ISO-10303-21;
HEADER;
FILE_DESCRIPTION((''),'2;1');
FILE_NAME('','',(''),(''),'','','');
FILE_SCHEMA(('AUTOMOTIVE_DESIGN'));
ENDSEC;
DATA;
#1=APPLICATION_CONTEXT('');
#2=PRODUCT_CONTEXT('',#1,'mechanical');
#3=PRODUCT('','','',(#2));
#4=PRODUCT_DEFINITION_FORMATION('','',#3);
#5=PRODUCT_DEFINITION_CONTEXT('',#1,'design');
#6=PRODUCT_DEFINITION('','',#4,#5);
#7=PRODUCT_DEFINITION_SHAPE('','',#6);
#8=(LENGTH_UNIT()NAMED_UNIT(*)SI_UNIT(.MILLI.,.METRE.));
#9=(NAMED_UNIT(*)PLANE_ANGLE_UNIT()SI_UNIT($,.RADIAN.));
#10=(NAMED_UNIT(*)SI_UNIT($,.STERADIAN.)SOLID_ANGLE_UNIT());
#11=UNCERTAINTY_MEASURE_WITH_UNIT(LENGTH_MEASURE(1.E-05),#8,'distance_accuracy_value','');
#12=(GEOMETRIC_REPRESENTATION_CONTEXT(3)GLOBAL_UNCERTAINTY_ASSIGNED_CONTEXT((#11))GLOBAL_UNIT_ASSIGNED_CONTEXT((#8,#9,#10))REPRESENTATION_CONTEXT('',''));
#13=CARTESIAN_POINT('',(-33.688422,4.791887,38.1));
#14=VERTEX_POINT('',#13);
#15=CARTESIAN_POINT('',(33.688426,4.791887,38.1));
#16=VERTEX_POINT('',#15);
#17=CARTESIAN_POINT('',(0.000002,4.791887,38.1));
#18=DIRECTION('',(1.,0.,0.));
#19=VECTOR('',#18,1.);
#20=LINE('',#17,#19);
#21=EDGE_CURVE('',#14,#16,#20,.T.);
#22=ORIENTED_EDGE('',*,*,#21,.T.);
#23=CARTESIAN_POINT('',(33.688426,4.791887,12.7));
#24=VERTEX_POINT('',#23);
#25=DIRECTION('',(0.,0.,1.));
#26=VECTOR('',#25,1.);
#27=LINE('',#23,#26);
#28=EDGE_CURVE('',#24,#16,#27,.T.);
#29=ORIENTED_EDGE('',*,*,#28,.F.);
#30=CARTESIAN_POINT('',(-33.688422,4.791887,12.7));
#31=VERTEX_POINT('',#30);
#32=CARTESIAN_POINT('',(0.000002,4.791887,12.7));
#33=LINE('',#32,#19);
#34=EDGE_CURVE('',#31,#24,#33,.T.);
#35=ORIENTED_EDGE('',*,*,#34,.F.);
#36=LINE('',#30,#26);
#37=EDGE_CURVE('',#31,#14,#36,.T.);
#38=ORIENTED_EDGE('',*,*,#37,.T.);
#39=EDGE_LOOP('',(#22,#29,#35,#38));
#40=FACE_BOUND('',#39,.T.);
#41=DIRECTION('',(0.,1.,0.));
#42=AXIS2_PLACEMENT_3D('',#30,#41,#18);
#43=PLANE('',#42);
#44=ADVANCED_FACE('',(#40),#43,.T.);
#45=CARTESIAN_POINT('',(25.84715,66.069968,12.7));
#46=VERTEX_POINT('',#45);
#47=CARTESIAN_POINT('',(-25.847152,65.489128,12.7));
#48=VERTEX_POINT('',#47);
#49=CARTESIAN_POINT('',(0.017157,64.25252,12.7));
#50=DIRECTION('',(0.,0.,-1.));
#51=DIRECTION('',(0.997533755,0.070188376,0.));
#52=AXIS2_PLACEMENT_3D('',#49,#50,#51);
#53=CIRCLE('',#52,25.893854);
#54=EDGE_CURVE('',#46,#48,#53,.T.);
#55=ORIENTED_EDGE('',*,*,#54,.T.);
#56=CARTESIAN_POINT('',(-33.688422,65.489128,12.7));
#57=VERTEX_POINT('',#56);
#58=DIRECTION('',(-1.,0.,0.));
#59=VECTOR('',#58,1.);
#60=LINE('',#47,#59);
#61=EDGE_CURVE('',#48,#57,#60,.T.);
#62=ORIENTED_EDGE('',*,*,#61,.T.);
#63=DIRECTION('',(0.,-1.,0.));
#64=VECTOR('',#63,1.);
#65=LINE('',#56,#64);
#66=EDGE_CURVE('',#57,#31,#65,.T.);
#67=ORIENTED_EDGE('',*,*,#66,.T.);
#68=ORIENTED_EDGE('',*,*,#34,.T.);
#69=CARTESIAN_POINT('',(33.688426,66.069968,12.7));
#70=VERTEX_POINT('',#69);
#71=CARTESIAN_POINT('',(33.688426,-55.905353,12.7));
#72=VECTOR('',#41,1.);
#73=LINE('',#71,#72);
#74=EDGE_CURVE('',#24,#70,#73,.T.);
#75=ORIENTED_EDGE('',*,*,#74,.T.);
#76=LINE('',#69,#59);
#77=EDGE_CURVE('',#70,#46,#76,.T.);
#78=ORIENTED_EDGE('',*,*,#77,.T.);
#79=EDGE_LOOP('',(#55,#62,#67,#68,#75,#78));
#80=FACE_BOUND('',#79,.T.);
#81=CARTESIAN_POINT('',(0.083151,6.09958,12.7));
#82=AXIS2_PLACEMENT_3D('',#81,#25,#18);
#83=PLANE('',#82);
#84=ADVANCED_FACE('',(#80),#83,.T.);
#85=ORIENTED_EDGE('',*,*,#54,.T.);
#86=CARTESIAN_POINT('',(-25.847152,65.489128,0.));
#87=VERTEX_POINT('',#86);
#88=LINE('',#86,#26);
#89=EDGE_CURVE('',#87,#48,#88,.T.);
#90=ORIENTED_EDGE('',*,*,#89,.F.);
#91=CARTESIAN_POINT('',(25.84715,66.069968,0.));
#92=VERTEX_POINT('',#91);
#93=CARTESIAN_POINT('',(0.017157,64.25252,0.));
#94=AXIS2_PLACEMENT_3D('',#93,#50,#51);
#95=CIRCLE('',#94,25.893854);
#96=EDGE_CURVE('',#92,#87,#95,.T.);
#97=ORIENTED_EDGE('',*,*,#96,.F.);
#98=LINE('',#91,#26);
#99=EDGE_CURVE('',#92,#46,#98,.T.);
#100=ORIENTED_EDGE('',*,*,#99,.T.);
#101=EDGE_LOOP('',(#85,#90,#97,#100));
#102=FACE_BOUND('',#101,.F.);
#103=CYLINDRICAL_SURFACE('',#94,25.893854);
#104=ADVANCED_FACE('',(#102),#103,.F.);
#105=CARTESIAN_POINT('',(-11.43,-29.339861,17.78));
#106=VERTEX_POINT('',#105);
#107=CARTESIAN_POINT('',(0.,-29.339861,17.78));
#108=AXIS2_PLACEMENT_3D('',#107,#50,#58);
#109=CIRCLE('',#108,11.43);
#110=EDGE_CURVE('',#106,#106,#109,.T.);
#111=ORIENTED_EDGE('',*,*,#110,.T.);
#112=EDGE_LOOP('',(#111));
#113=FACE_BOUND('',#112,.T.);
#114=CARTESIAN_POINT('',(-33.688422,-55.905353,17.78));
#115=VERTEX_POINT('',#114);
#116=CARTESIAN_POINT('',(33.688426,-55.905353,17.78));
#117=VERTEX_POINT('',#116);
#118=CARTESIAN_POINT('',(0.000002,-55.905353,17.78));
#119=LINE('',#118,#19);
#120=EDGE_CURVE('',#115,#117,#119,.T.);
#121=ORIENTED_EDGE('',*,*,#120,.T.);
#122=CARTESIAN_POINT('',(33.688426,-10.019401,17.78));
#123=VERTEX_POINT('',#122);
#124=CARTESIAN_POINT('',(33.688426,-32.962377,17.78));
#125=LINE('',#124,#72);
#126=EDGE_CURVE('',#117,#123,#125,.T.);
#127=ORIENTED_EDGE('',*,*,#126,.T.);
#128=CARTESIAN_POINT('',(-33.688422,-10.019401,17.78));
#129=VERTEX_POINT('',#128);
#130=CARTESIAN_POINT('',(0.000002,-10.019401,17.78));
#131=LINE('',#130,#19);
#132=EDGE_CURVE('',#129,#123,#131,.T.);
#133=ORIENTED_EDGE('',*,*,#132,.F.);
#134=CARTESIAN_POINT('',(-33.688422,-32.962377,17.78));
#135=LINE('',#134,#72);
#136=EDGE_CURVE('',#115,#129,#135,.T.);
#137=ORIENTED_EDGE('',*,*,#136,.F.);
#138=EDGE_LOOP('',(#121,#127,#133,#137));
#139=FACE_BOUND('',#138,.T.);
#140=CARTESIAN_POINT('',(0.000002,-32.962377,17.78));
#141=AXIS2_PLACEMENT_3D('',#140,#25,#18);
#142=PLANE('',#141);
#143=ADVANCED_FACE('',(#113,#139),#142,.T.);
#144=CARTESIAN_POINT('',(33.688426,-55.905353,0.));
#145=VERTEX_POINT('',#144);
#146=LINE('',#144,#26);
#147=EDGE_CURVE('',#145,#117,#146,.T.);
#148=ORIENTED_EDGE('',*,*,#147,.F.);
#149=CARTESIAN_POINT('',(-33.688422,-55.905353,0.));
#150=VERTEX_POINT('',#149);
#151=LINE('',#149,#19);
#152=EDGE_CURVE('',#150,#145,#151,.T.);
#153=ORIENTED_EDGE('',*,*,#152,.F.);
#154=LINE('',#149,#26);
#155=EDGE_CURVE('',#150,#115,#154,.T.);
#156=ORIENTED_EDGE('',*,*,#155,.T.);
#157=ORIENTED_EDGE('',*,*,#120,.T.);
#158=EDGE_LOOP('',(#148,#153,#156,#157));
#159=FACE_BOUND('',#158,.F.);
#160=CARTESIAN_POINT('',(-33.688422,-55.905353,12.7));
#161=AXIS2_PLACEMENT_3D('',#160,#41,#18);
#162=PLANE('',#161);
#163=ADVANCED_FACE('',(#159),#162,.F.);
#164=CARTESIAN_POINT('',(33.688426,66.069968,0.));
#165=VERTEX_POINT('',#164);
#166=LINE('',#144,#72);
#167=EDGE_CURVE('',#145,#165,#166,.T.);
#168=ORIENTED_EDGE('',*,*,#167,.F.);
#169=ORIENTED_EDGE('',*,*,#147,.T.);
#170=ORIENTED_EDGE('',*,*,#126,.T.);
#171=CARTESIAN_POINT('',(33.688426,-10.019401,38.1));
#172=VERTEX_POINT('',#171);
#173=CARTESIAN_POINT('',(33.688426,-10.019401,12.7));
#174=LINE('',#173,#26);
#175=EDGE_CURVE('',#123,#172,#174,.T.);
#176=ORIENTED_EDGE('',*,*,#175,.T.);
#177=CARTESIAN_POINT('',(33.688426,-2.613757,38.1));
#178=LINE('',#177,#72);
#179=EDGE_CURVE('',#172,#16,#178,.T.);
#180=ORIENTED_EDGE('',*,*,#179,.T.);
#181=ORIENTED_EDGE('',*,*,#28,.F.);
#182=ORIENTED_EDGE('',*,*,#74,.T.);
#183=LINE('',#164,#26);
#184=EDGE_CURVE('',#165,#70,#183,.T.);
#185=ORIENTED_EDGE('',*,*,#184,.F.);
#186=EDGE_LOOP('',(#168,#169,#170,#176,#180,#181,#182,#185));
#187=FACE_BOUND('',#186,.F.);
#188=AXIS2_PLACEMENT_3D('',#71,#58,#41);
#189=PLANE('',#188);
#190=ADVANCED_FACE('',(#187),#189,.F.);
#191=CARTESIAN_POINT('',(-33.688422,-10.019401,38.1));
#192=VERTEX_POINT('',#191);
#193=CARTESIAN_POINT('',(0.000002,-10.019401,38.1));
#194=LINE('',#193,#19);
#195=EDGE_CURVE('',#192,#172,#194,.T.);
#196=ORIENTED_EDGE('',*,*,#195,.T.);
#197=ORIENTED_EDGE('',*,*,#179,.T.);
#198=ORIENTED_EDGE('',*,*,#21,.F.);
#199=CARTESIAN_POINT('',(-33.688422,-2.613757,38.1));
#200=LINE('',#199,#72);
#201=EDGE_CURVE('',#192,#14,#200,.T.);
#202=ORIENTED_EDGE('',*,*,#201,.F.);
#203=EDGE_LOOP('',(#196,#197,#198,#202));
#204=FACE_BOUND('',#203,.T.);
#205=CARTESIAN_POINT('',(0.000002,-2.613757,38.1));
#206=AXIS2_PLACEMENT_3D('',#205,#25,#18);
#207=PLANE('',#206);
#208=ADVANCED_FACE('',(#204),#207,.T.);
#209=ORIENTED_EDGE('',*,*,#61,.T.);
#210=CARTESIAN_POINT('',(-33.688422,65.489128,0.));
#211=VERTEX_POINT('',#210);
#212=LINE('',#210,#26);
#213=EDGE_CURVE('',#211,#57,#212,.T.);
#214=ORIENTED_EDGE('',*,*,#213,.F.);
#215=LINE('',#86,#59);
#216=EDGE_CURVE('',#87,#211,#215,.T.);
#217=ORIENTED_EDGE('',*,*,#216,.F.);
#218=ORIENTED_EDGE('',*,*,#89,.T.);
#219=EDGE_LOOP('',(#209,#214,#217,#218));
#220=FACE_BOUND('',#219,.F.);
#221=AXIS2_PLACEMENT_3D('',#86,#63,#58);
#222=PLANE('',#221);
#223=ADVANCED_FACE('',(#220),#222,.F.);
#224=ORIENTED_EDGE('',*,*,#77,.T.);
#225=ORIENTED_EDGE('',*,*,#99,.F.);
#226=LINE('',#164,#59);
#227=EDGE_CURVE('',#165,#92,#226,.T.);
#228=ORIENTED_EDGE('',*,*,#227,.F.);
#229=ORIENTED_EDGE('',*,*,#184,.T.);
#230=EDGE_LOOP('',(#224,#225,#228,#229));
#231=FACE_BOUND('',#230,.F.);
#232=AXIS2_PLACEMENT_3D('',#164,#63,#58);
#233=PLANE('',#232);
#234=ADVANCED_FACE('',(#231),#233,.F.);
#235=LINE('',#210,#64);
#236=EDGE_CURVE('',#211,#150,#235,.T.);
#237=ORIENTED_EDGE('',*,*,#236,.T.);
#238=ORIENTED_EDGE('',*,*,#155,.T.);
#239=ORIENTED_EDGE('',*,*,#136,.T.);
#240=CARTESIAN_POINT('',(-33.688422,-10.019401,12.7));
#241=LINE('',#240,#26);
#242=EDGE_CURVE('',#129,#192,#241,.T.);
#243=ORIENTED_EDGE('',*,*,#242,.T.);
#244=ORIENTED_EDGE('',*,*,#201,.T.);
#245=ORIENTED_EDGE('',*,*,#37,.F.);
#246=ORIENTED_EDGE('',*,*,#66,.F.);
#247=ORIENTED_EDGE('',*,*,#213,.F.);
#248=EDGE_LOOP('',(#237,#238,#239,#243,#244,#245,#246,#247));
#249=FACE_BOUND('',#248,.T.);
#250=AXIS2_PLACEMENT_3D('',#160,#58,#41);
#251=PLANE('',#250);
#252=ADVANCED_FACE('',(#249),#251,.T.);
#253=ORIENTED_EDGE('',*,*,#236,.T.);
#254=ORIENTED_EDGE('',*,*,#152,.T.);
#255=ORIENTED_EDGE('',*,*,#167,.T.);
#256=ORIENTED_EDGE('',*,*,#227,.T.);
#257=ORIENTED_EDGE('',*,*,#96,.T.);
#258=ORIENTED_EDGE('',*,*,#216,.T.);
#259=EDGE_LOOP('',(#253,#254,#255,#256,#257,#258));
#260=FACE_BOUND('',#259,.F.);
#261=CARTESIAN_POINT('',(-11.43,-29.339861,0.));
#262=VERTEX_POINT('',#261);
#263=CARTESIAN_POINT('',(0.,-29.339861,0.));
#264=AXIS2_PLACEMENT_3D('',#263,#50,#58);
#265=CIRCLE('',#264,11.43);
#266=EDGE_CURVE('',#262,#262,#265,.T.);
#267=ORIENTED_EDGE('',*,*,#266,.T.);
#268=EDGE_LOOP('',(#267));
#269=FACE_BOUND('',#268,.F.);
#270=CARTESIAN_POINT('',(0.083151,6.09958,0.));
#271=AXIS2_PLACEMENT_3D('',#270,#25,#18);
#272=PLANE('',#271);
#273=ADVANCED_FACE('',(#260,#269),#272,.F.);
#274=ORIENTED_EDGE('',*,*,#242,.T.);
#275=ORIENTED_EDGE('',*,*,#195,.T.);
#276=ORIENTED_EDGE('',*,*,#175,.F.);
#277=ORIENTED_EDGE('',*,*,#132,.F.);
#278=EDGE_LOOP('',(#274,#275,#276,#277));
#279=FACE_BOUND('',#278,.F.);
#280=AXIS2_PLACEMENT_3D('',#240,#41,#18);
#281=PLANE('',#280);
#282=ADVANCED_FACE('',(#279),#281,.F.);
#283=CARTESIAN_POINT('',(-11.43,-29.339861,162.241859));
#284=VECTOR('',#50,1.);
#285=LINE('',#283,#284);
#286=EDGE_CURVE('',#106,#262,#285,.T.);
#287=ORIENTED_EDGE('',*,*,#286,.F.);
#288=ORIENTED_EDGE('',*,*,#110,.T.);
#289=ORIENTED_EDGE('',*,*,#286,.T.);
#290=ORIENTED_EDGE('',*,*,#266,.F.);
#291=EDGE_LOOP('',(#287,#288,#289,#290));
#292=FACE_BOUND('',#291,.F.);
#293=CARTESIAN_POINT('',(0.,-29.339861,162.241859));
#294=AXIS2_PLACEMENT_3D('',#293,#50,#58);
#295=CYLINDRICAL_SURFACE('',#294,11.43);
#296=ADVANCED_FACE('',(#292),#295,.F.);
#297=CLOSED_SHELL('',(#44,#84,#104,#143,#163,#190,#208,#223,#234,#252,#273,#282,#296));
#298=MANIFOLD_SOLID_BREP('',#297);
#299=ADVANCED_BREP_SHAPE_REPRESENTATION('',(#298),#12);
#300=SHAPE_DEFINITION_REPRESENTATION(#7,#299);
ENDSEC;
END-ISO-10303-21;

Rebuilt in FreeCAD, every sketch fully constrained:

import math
import FreeCAD as App
import Part
import Sketcher

V = App.Vector
Q = App.Units.Quantity

doc = App.newDocument("Part")
body = doc.addObject("PartDesign::Body", "Body")

# Sketch on XY plane
sketch1 = doc.addObject("Sketcher::SketchObject", "Sketch")
body.addObject(sketch1)
sketch1.AttachmentSupport = (doc.XY_Plane, [""])
sketch1.MapMode = "FlatFace"
sketch1.addGeometry([
    Part.LineSegment(V(-34, 65, 0), V(-34, -56, 0)),  # 0
    Part.LineSegment(V(-34, -56, 0), V(34, -56, 0)),  # 1
    Part.LineSegment(V(34, -56, 0), V(34, 66, 0)),  # 2
    Part.LineSegment(V(34, 66, 0), V(26, 66, 0)),  # 3
    Part.ArcOfCircle(Part.Circle(V(0, 64, 0), V(0, 0, 1), 26), math.radians(177), math.radians(364)),  # 4
    Part.LineSegment(V(-26, 65, 0), V(-34, 65, 0)),  # 5
], False)
sketch1.addConstraint([
    Sketcher.Constraint("Coincident", 0, 2, 1, 1),
    Sketcher.Constraint("Coincident", 1, 2, 2, 1),
    Sketcher.Constraint("Coincident", 2, 2, 3, 1),
    Sketcher.Constraint("Coincident", 3, 2, 4, 2),
    Sketcher.Constraint("Coincident", 4, 1, 5, 1),
    Sketcher.Constraint("Coincident", 5, 2, 0, 1),
    Sketcher.Constraint("Vertical", 0),
    Sketcher.Constraint("Horizontal", 1),
    Sketcher.Constraint("Vertical", 2),
    Sketcher.Constraint("Horizontal", 3),
    Sketcher.Constraint("Horizontal", 5),
    Sketcher.Constraint("Radius", 4, Q("25.893854 mm")),
    Sketcher.Constraint("DistanceX", 5, 2, 5, 1, Q("7.84127 mm")),
    Sketcher.Constraint("DistanceY", 0, 2, 0, 1, Q("121.394481 mm")),
    Sketcher.Constraint("DistanceY", 2, 1, 2, 2, Q("121.975321 mm")),
    Sketcher.Constraint("DistanceX", 4, 1, 3, 2, Q("51.694302 mm")),
    Sketcher.Constraint("DistanceX", 1, 1, 1, 2, Q("67.376848 mm")),
    Sketcher.Constraint("DistanceY", -1, 1, 4, 3, Q("64.25252 mm")),
    Sketcher.Constraint("DistanceX", -1, 1, 3, 2, Q("25.84715 mm")),
])
pad1 = doc.addObject("PartDesign::Pad", "Pad")
body.addObject(pad1)
pad1.Profile = sketch1
pad1.Length = Q("0.5 in")

# Sketch on XY plane
sketch2 = doc.addObject("Sketcher::SketchObject", "Sketch001")
body.addObject(sketch2)
sketch2.AttachmentSupport = (doc.XY_Plane, [""])
sketch2.MapMode = "FlatFace"
sketch2.AttachmentOffset = App.Placement(V(0, 0, 0.5 * 25.4), App.Rotation())
sketch2.addGeometry([
    Part.LineSegment(V(-34, 5, 0), V(-34, -10, 0)),
    Part.LineSegment(V(-34, -10, 0), V(34, -10, 0)),
    Part.LineSegment(V(34, -10, 0), V(34, 5, 0)),
    Part.LineSegment(V(34, 5, 0), V(-34, 5, 0)),
], False)
sketch2.addConstraint([
    Sketcher.Constraint("Coincident", 0, 2, 1, 1),
    Sketcher.Constraint("Coincident", 1, 2, 2, 1),
    Sketcher.Constraint("Coincident", 2, 2, 3, 1),
    Sketcher.Constraint("Coincident", 3, 2, 0, 1),
    Sketcher.Constraint("Vertical", 0),
    Sketcher.Constraint("Horizontal", 1),
    Sketcher.Constraint("Vertical", 2),
    Sketcher.Constraint("Horizontal", 3),
    Sketcher.Constraint("DistanceY", 0, 2, 0, 1, Q("14.811288 mm")),
    Sketcher.Constraint("DistanceY", 0, 2, -1, 1, Q("10.019401 mm")),
    Sketcher.Constraint("DistanceX", 1, 1, 1, 2, Q("67.376848 mm")),
    Sketcher.Constraint("DistanceX", 0, 2, -1, 1, Q("33.688422 mm")),
])
pad2 = doc.addObject("PartDesign::Pad", "Pad001")
body.addObject(pad2)
pad2.Profile = sketch2
pad2.Length = Q("1 in")

# Sketch on XY plane
sketch3 = doc.addObject("Sketcher::SketchObject", "Sketch002")
body.addObject(sketch3)
sketch3.AttachmentSupport = (doc.XY_Plane, [""])
sketch3.MapMode = "FlatFace"
sketch3.AttachmentOffset = App.Placement(V(0, 0, 0.5 * 25.4), App.Rotation())
sketch3.addGeometry([
    Part.LineSegment(V(-34, -10, 0), V(-34, -56, 0)),
    Part.LineSegment(V(-34, -56, 0), V(34, -56, 0)),
    Part.LineSegment(V(34, -56, 0), V(34, -10, 0)),
    Part.LineSegment(V(34, -10, 0), V(-34, -10, 0)),
], False)
sketch3.addConstraint([
    Sketcher.Constraint("Coincident", 0, 2, 1, 1),
    Sketcher.Constraint("Coincident", 1, 2, 2, 1),
    Sketcher.Constraint("Coincident", 2, 2, 3, 1),
    Sketcher.Constraint("Coincident", 3, 2, 0, 1),
    Sketcher.Constraint("Vertical", 0),
    Sketcher.Constraint("Horizontal", 1),
    Sketcher.Constraint("Vertical", 2),
    Sketcher.Constraint("Horizontal", 3),
    Sketcher.Constraint("DistanceY", 0, 2, 0, 1, Q("45.885952 mm")),
    Sketcher.Constraint("DistanceY", 2, 2, -1, 1, Q("10.019401 mm")),
    Sketcher.Constraint("DistanceX", 1, 1, 1, 2, Q("67.376848 mm")),
    Sketcher.Constraint("DistanceX", 0, 2, -1, 1, Q("33.688422 mm")),
])
pad3 = doc.addObject("PartDesign::Pad", "Pad002")
body.addObject(pad3)
pad3.Profile = sketch3
pad3.Length = Q("0.2 in")

# Sketch on XY plane
sketch4 = doc.addObject("Sketcher::SketchObject", "Sketch003")
body.addObject(sketch4)
sketch4.AttachmentSupport = (doc.XY_Plane, [""])
sketch4.MapMode = "FlatFace"
sketch4.AttachmentOffset = App.Placement(V(0, 0, 0.7 * 25.4), App.Rotation())
sketch4.addGeometry(Part.Circle(V(0, -29, 0), V(0, 0, 1), 11), False)
sketch4.addConstraint([
    Sketcher.Constraint("PointOnObject", 0, 3, -2),
    Sketcher.Constraint("Diameter", 0, Q("0.9 in")),
    Sketcher.Constraint("DistanceY", 0, 3, -1, 1, Q("29.339861 mm")),
])
doc.recompute()
hole = doc.addObject("PartDesign::Hole", "Hole")
body.addObject(hole)
hole.Profile = sketch4
hole.ThreadType = "None"
hole.Diameter = Q("0.9 in")
hole.DepthType = "ThroughAll"

doc.recompute()
